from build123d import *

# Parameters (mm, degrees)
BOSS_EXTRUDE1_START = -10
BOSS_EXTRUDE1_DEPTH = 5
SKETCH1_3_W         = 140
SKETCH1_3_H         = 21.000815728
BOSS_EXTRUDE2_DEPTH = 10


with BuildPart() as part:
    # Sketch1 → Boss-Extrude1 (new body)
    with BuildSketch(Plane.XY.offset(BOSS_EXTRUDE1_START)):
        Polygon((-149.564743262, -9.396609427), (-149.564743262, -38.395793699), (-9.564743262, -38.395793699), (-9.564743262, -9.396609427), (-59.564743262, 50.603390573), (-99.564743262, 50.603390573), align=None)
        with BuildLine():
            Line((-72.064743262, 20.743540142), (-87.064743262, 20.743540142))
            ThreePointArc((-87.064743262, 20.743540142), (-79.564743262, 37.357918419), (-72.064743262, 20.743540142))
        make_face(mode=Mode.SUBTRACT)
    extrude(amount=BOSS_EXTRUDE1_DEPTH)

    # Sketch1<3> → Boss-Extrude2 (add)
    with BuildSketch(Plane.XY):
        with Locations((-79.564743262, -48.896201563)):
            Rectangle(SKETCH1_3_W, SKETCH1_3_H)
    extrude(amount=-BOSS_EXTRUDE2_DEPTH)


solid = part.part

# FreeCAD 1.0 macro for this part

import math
import FreeCAD as App
import Part
import Sketcher

V = App.Vector

doc = App.newDocument("Part")
body = doc.addObject("PartDesign::Body", "Body")

sketch1 = body.newObject("Sketcher::SketchObject", "Sketch")
sketch1.AttachmentSupport = (doc.getObject("XY_Plane"), [""])
sketch1.MapMode = "FlatFace"
sketch1.AttachmentOffset = App.Placement(V(0, 0, -10), App.Rotation())
sketch1.addGeometry(Part.LineSegment(V(-150, -9, 0), V(-150, -38, 0)), False)
sketch1.addGeometry(Part.LineSegment(V(-150, -38, 0), V(-10, -38, 0)), False)
sketch1.addGeometry(Part.LineSegment(V(-10, -38, 0), V(-10, -9, 0)), False)
sketch1.addGeometry(Part.LineSegment(V(-10, -9, 0), V(-60, 51, 0)), False)
sketch1.addGeometry(Part.LineSegment(V(-60, 51, 0), V(-100, 51, 0)), False)
sketch1.addGeometry(Part.LineSegment(V(-100, 51, 0), V(-150, -9, 0)), False)
sketch1.addGeometry(Part.ArcOfCircle(Part.Circle(V(-80, 27, 0), V(0, 0, 1), 10), math.radians(-41), math.radians(221)), False)
sketch1.addGeometry(Part.LineSegment(V(-72, 21, 0), V(-87, 21, 0)), False)
sketch1.addConstraint(Sketcher.Constraint("Coincident", 0, 2, 1, 1))
sketch1.addConstraint(Sketcher.Constraint("Coincident", 1, 2, 2, 1))
sketch1.addConstraint(Sketcher.Constraint("Coincident", 2, 2, 3, 1))
sketch1.addConstraint(Sketcher.Constraint("Coincident", 3, 2, 4, 1))
sketch1.addConstraint(Sketcher.Constraint("Coincident", 4, 2, 5, 1))
sketch1.addConstraint(Sketcher.Constraint("Coincident", 5, 2, 0, 1))
sketch1.addConstraint(Sketcher.Constraint("Coincident", 6, 1, 7, 1))
sketch1.addConstraint(Sketcher.Constraint("Coincident", 7, 2, 6, 2))
sketch1.addConstraint(Sketcher.Constraint("Vertical", 0))
sketch1.addConstraint(Sketcher.Constraint("Horizontal", 1))
sketch1.addConstraint(Sketcher.Constraint("Vertical", 2))
sketch1.addConstraint(Sketcher.Constraint("Horizontal", 4))
sketch1.addConstraint(Sketcher.Constraint("Horizontal", 7))
sketch1.addConstraint(Sketcher.Constraint("Horizontal", 2, 2, 5, 2))
sketch1.addConstraint(Sketcher.Constraint("Equal", 3, 5))
sketch1.addConstraint(Sketcher.Constraint("Radius", 6, 10.0))
sketch1.addConstraint(Sketcher.Constraint("DistanceX", 1, 1, 1, 2, 140.0))
sketch1.addConstraint(Sketcher.Constraint("DistanceX", 4, 2, 4, 1, 40.0))
sketch1.addConstraint(Sketcher.Constraint("DistanceX", 7, 2, 7, 1, 15.0))
sketch1.addConstraint(Sketcher.Constraint("DistanceX", 0, 2, 6, 3, 70.0))
sketch1.addConstraint(Sketcher.Constraint("DistanceY", 2, 2, 3, 2, 60.0))
sketch1.addConstraint(Sketcher.Constraint("DistanceY", 0, 2, 0, 1, 28.999184))
sketch1.addConstraint(Sketcher.Constraint("DistanceY", -1, 1, 6, 3, 27.357918))
sketch1.addConstraint(Sketcher.Constraint("DistanceY", 2, 2, -1, 1, 9.396609))
sketch1.addConstraint(Sketcher.Constraint("DistanceX", 6, 3, -1, 1, 79.564743))
pad1 = body.newObject("PartDesign::Pad", "Pad")
pad1.Profile = sketch1
pad1.Length = 5

sketch2 = body.newObject("Sketcher::SketchObject", "Sketch001")
sketch2.AttachmentSupport = (doc.getObject("XY_Plane"), [""])
sketch2.MapMode = "FlatFace"
sketch2.addGeometry(Part.LineSegment(V(-150, -38, 0), V(-150, -59, 0)), False)
sketch2.addGeometry(Part.LineSegment(V(-150, -59, 0), V(-10, -59, 0)), False)
sketch2.addGeometry(Part.LineSegment(V(-10, -59, 0), V(-10, -38, 0)), False)
sketch2.addGeometry(Part.LineSegment(V(-10, -38, 0), V(-150, -38, 0)), False)
sketch2.addConstraint(Sketcher.Constraint("Coincident", 0, 2, 1, 1))
sketch2.addConstraint(Sketcher.Constraint("Coincident", 1, 2, 2, 1))
sketch2.addConstraint(Sketcher.Constraint("Coincident", 2, 2, 3, 1))
sketch2.addConstraint(Sketcher.Constraint("Coincident", 3, 2, 0, 1))
sketch2.addConstraint(Sketcher.Constraint("Vertical", 0))
sketch2.addConstraint(Sketcher.Constraint("Horizontal", 1))
sketch2.addConstraint(Sketcher.Constraint("Vertical", 2))
sketch2.addConstraint(Sketcher.Constraint("Horizontal", 3))
sketch2.addConstraint(Sketcher.Constraint("DistanceX", 1, 1, 1, 2, 140.0))
sketch2.addConstraint(Sketcher.Constraint("DistanceY", 0, 2, 0, 1, 21.000816))
sketch2.addConstraint(Sketcher.Constraint("DistanceY", 0, 2, -1, 1, 59.396609))
sketch2.addConstraint(Sketcher.Constraint("DistanceX", 0, 2, -1, 1, 149.564743))
pad2 = body.newObject("PartDesign::Pad", "Pad001")
pad2.Profile = sketch2
pad2.Length = 10
pad2.Reversed = True

doc.recompute()
